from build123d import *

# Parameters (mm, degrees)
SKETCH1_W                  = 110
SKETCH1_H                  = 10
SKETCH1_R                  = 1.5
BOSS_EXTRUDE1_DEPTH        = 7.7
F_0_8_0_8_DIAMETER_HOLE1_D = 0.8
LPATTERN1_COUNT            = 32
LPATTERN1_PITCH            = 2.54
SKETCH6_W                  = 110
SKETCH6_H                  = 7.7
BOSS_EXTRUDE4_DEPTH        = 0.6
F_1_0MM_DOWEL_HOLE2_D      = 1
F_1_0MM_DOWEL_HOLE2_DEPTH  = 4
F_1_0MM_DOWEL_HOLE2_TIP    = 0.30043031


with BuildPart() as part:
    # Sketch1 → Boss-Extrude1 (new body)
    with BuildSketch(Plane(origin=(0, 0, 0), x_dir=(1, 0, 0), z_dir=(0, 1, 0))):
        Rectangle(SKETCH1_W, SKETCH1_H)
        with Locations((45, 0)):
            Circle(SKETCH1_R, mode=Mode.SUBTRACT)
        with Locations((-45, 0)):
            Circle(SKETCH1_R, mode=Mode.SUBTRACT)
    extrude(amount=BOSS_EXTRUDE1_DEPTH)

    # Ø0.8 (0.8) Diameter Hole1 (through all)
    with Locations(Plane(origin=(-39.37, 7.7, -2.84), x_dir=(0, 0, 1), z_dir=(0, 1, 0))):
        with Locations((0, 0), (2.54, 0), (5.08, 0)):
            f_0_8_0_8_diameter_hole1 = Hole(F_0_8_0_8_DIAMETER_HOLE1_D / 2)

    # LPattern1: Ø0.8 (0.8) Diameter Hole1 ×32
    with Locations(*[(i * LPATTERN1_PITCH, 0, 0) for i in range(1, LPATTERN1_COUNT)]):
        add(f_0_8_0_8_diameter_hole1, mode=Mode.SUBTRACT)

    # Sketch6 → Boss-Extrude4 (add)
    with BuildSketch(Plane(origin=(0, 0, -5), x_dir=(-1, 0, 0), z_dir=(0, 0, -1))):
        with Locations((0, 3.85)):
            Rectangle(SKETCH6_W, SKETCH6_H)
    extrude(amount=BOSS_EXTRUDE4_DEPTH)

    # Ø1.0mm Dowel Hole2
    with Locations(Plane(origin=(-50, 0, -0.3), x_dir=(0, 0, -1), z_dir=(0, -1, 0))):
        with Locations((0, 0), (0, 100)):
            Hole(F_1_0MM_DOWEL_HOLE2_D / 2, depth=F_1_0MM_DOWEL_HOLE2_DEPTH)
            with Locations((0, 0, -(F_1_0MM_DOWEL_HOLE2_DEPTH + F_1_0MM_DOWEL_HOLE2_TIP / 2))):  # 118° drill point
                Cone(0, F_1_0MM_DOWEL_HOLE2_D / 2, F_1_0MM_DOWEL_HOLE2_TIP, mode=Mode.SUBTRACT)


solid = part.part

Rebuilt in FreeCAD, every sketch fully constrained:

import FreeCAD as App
import Part
import Sketcher

V = App.Vector

doc = App.newDocument("Part")
body = doc.addObject("PartDesign::Body", "Body")

sketch1 = body.newObject("Sketcher::SketchObject", "Sketch")
sketch1.AttachmentSupport = (doc.getObject("XZ_Plane"), [""])
sketch1.MapMode = "FlatFace"
sketch1.addGeometry(Part.LineSegment(V(-55, -5, 0), V(-55, 5, 0)), False)
sketch1.addGeometry(Part.LineSegment(V(-55, 5, 0), V(55, 5, 0)), False)
sketch1.addGeometry(Part.LineSegment(V(55, 5, 0), V(55, -5, 0)), False)
sketch1.addGeometry(Part.LineSegment(V(55, -5, 0), V(-55, -5, 0)), False)
sketch1.addGeometry(Part.Circle(V(-45, 0, 0), V(0, 0, 1), 1.5), False)
sketch1.addGeometry(Part.Circle(V(45, 0, 0), V(0, 0, 1), 1.5), False)
sketch1.addConstraint(Sketcher.Constraint("Coincident", 0, 2, 1, 1))
sketch1.addConstraint(Sketcher.Constraint("Coincident", 1, 2, 2, 1))
sketch1.addConstraint(Sketcher.Constraint("Coincident", 2, 2, 3, 1))
sketch1.addConstraint(Sketcher.Constraint("Coincident", 3, 2, 0, 1))
sketch1.addConstraint(Sketcher.Constraint("Vertical", 0))
sketch1.addConstraint(Sketcher.Constraint("Horizontal", 1))
sketch1.addConstraint(Sketcher.Constraint("Vertical", 2))
sketch1.addConstraint(Sketcher.Constraint("Horizontal", 3))
sketch1.addConstraint(Sketcher.Constraint("Equal", 4, 5))
sketch1.addConstraint(Sketcher.Constraint("Symmetric", 4, 3, 5, 3, -1, 1))
sketch1.addConstraint(Sketcher.Constraint("Symmetric", 0, 2, 2, 2, -1, 1))
sketch1.addConstraint(Sketcher.Constraint("PointOnObject", 4, 3, -1))
sketch1.addConstraint(Sketcher.Constraint("Diameter", 4, 3.0))
sketch1.addConstraint(Sketcher.Constraint("DistanceX", 1, 1, 1, 2, 110.0))
sketch1.addConstraint(Sketcher.Constraint("DistanceY", 0, 1, 0, 2, 10.0))
sketch1.addConstraint(Sketcher.Constraint("DistanceX", 4, 3, -1, 1, 45.0))
pad1 = body.newObject("PartDesign::Pad", "Pad")
pad1.Profile = sketch1
pad1.Length = 7.7
pad1.Reversed = True

sketch2 = body.newObject("Sketcher::SketchObject", "Sketch001")
sketch2.AttachmentSupport = (doc.getObject("XZ_Plane"), [""])
sketch2.MapMode = "FlatFace"
sketch2.AttachmentOffset = App.Placement(V(0, 0, -7.7), App.Rotation())
sketch2.addGeometry(Part.Circle(V(-39.37, -2.84, 0), V(0, 0, 1), 0.4), False)
sketch2.addGeometry(Part.Circle(V(-39.37, -0.3, 0), V(0, 0, 1), 0.4), False)
sketch2.addGeometry(Part.Circle(V(-39.37, 2.24, 0), V(0, 0, 1), 0.4), False)
sketch2.addConstraint(Sketcher.Constraint("Equal", 0, 1))
sketch2.addConstraint(Sketcher.Constraint("Equal", 1, 2))
sketch2.addConstraint(Sketcher.Constraint("Vertical", 0, 3, 1, 3))
sketch2.addConstraint(Sketcher.Constraint("Vertical", 1, 3, 2, 3))
sketch2.addConstraint(Sketcher.Constraint("Diameter", 0, 0.8))
sketch2.addConstraint(Sketcher.Constraint("DistanceY", 1, 3, -1, 1, 0.3))
sketch2.addConstraint(Sketcher.Constraint("DistanceX", 0, 3, -1, 1, 39.37))
sketch2.addConstraint(Sketcher.Constraint("DistanceY", 0, 3, -1, 1, 2.84))
sketch2.addConstraint(Sketcher.Constraint("DistanceY", -1, 1, 2, 3, 2.24))
doc.recompute()
hole = body.newObject("PartDesign::Hole", "Hole")
hole.Profile = sketch2
hole.ThreadType = "None"
hole.Diameter = 0.8
hole.DepthType = "ThroughAll"
hole.Reversed = True
doc.recompute()

linearpattern = body.newObject("PartDesign::LinearPattern", "LinearPattern")
linearpattern.Originals = [hole]
linearpattern.Direction = (doc.getObject("X_Axis"), [""])
linearpattern.Mode = "offset"
linearpattern.Offset = 2.54
linearpattern.Occurrences = 32
body.Tip = linearpattern

sketch3 = body.newObject("Sketcher::SketchObject", "Sketch002")
sketch3.AttachmentSupport = (doc.getObject("XY_Plane"), [""])
sketch3.MapMode = "FlatFace"
sketch3.AttachmentOffset = App.Placement(V(0, 0, -5), App.Rotation())
sketch3.addGeometry(Part.LineSegment(V(55, 8, 0), V(55, 0, 0)), False)
sketch3.addGeometry(Part.LineSegment(V(55, 0, 0), V(-55, 0, 0)), False)
sketch3.addGeometry(Part.LineSegment(V(-55, 0, 0), V(-55, 8, 0)), False)
sketch3.addGeometry(Part.LineSegment(V(-55, 8, 0), V(55, 8, 0)), False)
sketch3.addConstraint(Sketcher.Constraint("Coincident", 0, 2, 1, 1))
sketch3.addConstraint(Sketcher.Constraint("Coincident", 1, 2, 2, 1))
sketch3.addConstraint(Sketcher.Constraint("Coincident", 2, 2, 3, 1))
sketch3.addConstraint(Sketcher.Constraint("Coincident", 3, 2, 0, 1))
sketch3.addConstraint(Sketcher.Constraint("Vertical", 0))
sketch3.addConstraint(Sketcher.Constraint("Horizontal", 1))
sketch3.addConstraint(Sketcher.Constraint("Vertical", 2))
sketch3.addConstraint(Sketcher.Constraint("Horizontal", 3))
sketch3.addConstraint(Sketcher.Constraint("Symmetric", 0, 2, 1, 2, -1, 1))
sketch3.addConstraint(Sketcher.Constraint("DistanceX", 1, 2, 1, 1, 110.0))
sketch3.addConstraint(Sketcher.Constraint("DistanceY", 0, 2, 0, 1, 7.7))
pad2 = body.newObject("PartDesign::Pad", "Pad001")
pad2.Profile = sketch3
pad2.Length = 0.6
pad2.Reversed = True

sketch4 = body.newObject("Sketcher::SketchObject", "Sketch003")
sketch4.AttachmentSupport = (doc.getObject("XZ_Plane"), [""])
sketch4.MapMode = "FlatFace"
sketch4.addGeometry(Part.Circle(V(-50, -0.3, 0), V(0, 0, 1), 0.5), False)
sketch4.addGeometry(Part.Circle(V(50, -0.3, 0), V(0, 0, 1), 0.5), False)
sketch4.addConstraint(Sketcher.Constraint("Equal", 0, 1))
sketch4.addConstraint(Sketcher.Constraint("Symmetric", 0, 3, 1, 3, -2))
sketch4.addConstraint(Sketcher.Constraint("Diameter", 0, 1.0))
sketch4.addConstraint(Sketcher.Constraint("DistanceX", 0, 3, -1, 1, 50.0))
sketch4.addConstraint(Sketcher.Constraint("DistanceY", 0, 3, -1, 1, 0.3))
doc.recompute()
hole2 = body.newObject("PartDesign::Hole", "Hole001")
hole2.Profile = sketch4
hole2.ThreadType = "None"
hole2.Diameter = 1
hole2.DepthType = "Dimension"
hole2.Depth = 4
hole2.DrillPoint = "Angled"
hole2.DrillPointAngle = 118

doc.recompute()
